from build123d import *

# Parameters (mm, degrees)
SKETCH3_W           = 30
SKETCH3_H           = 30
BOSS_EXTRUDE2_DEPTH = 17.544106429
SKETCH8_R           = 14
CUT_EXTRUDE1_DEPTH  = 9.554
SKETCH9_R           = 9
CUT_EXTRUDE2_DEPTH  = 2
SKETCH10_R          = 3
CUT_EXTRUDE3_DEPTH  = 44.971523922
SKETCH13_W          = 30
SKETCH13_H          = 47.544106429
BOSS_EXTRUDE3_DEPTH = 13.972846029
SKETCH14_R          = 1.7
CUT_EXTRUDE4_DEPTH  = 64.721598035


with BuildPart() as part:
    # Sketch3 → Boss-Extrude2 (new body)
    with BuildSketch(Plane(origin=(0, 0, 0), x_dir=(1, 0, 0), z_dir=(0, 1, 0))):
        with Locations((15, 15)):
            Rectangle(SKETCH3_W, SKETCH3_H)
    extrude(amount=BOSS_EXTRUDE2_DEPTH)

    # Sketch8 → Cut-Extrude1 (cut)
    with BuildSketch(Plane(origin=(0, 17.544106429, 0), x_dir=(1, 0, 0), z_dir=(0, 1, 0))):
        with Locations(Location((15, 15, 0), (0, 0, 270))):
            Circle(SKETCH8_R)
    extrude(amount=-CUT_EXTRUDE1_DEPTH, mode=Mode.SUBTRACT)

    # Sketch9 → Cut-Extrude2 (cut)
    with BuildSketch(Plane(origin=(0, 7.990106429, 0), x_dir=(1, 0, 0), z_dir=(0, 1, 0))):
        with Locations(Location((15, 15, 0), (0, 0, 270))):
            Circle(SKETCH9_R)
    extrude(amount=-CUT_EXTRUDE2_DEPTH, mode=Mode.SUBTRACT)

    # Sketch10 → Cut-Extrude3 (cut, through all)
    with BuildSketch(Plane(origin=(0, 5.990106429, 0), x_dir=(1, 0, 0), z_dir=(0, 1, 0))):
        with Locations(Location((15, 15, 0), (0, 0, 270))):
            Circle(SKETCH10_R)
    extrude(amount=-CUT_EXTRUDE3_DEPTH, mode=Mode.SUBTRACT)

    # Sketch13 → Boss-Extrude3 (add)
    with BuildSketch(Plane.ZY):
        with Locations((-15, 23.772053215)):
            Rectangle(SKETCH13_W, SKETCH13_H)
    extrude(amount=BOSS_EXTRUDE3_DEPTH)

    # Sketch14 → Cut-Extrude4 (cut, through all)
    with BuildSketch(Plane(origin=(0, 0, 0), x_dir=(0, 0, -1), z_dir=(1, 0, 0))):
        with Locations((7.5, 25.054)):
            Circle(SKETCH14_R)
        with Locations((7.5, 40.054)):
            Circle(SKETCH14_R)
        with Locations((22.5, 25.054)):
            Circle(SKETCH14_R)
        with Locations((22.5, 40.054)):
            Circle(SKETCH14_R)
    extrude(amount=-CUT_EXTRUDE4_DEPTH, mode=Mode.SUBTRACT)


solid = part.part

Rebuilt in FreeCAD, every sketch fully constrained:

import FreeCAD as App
import Part
import Sketcher
from FreeCAD import Vector
Q = App.Units.Quantity

doc = App.newDocument("Part")
body = doc.addObject("PartDesign::Body", "Body")

sketch1 = body.newObject("Sketcher::SketchObject", "Sketch")
sketch1.AttachmentSupport = (doc.getObject("XZ_Plane"), [""])
sketch1.MapMode = "FlatFace"
sketch1.addGeometry(Part.LineSegment(Vector(0, -30, 0), Vector(0, 0, 0)), False)
sketch1.addGeometry(Part.LineSegment(Vector(0, 0, 0), Vector(30, 0, 0)), False)
sketch1.addGeometry(Part.LineSegment(Vector(30, 0, 0), Vector(30, -30, 0)), False)
sketch1.addGeometry(Part.LineSegment(Vector(30, -30, 0), Vector(0, -30, 0)), False)
sketch1.addConstraint(Sketcher.Constraint("Coincident", 0, 2, 1, 1))
sketch1.addConstraint(Sketcher.Constraint("Coincident", 1, 2, 2, 1))
sketch1.addConstraint(Sketcher.Constraint("Coincident", 2, 2, 3, 1))
sketch1.addConstraint(Sketcher.Constraint("Coincident", 3, 2, 0, 1))
sketch1.addConstraint(Sketcher.Constraint("Vertical", 0))
sketch1.addConstraint(Sketcher.Constraint("Horizontal", 1))
sketch1.addConstraint(Sketcher.Constraint("Vertical", 2))
sketch1.addConstraint(Sketcher.Constraint("Horizontal", 3))
sketch1.addConstraint(Sketcher.Constraint("Coincident", 0, 2, -1, 1))
sketch1.addConstraint(Sketcher.Constraint("Equal", 3, 0))
sketch1.addConstraint(Sketcher.Constraint("DistanceX", 1, 1, 1, 2, Q("30 mm")))
pad1 = body.newObject("PartDesign::Pad", "Pad")
pad1.Profile = sketch1
pad1.Length = 17.544106
pad1.Reversed = True

sketch2 = body.newObject("Sketcher::SketchObject", "Sketch001")
sketch2.AttachmentSupport = (doc.getObject("XZ_Plane"), [""])
sketch2.MapMode = "FlatFace"
sketch2.AttachmentOffset = App.Placement(Vector(0, 0, -17.544106), App.Rotation())
sketch2.addGeometry(Part.Circle(Vector(15, -15, 0), Vector(0, 0, 1), 14), False)
sketch2.addConstraint(Sketcher.Constraint("Diameter", 0, Q("28 mm")))
sketch2.addConstraint(Sketcher.Constraint("DistanceX", -1, 1, 0, 3, Q("15 mm")))
sketch2.addConstraint(Sketcher.Constraint("DistanceY", 0, 3, -1, 1, Q("15 mm")))
pocket1 = body.newObject("PartDesign::Pocket", "Pocket")
pocket1.Profile = sketch2
pocket1.Length = 9.554
pocket1.Reversed = True

sketch3 = body.newObject("Sketcher::SketchObject", "Sketch002")
sketch3.AttachmentSupport = (doc.getObject("XZ_Plane"), [""])
sketch3.MapMode = "FlatFace"
sketch3.AttachmentOffset = App.Placement(Vector(0, 0, -7.990106), App.Rotation())
sketch3.addGeometry(Part.Circle(Vector(15, -15, 0), Vector(0, 0, 1), 9), False)
sketch3.addConstraint(Sketcher.Constraint("Diameter", 0, Q("18 mm")))
sketch3.addConstraint(Sketcher.Constraint("DistanceX", -1, 1, 0, 3, Q("15 mm")))
sketch3.addConstraint(Sketcher.Constraint("DistanceY", 0, 3, -1, 1, Q("15 mm")))
pocket2 = body.newObject("PartDesign::Pocket", "Pocket001")
pocket2.Profile = sketch3
pocket2.Length = 2
pocket2.Reversed = True

sketch4 = body.newObject("Sketcher::SketchObject", "Sketch003")
sketch4.AttachmentSupport = (doc.getObject("XZ_Plane"), [""])
sketch4.MapMode = "FlatFace"
sketch4.AttachmentOffset = App.Placement(Vector(0, 0, -5.990106), App.Rotation())
sketch4.addGeometry(Part.Circle(Vector(15, -15, 0), Vector(0, 0, 1), 3), False)
sketch4.addConstraint(Sketcher.Constraint("Diameter", 0, Q("6 mm")))
sketch4.addConstraint(Sketcher.Constraint("DistanceX", -1, 1, 0, 3, Q("15 mm")))
sketch4.addConstraint(Sketcher.Constraint("DistanceY", 0, 3, -1, 1, Q("15 mm")))
pocket3 = body.newObject("PartDesign::Pocket", "Pocket002")
pocket3.Profile = sketch4
pocket3.Type = "ThroughAll"
pocket3.Reversed = True

sketch5 = body.newObject("Sketcher::SketchObject", "Sketch004")
sketch5.AttachmentSupport = (doc.getObject("YZ_Plane"), [""])
sketch5.MapMode = "FlatFace"
sketch5.addGeometry(Part.LineSegment(Vector(47.544106, -30, 0), Vector(0, -30, 0)), False)
sketch5.addGeometry(Part.LineSegment(Vector(0, -30, 0), Vector(0, 0, 0)), False)
sketch5.addGeometry(Part.LineSegment(Vector(0, 0, 0), Vector(47.544106, 0, 0)), False)
sketch5.addGeometry(Part.LineSegment(Vector(47.544106, 0, 0), Vector(47.544106, -30, 0)), False)
sketch5.addConstraint(Sketcher.Constraint("Coincident", 0, 2, 1, 1))
sketch5.addConstraint(Sketcher.Constraint("Coincident", 1, 2, 2, 1))
sketch5.addConstraint(Sketcher.Constraint("Coincident", 2, 2, 3, 1))
sketch5.addConstraint(Sketcher.Constraint("Coincident", 3, 2, 0, 1))
sketch5.addConstraint(Sketcher.Constraint("Horizontal", 0))
sketch5.addConstraint(Sketcher.Constraint("Vertical", 1))
sketch5.addConstraint(Sketcher.Constraint("Horizontal", 2))
sketch5.addConstraint(Sketcher.Constraint("Vertical", 3))
sketch5.addConstraint(Sketcher.Constraint("Coincident", 1, 2, -1, 1))
sketch5.addConstraint(Sketcher.Constraint("DistanceY", 1, 1, 1, 2, Q("30 mm")))
sketch5.addConstraint(Sketcher.Constraint("DistanceX", 0, 2, 0, 1, Q("47.544106 mm")))
pad2 = body.newObject("PartDesign::Pad", "Pad001")
pad2.Profile = sketch5
pad2.Length = 13.972846
pad2.Reversed = True

sketch6 = body.newObject("Sketcher::SketchObject", "Sketch005")
sketch6.AttachmentSupport = (doc.getObject("YZ_Plane"), [""])
sketch6.MapMode = "FlatFace"
sketch6.addGeometry(Part.Circle(Vector(25.054, -7.5, 0), Vector(0, 0, 1), 1.7), False)
sketch6.addGeometry(Part.Circle(Vector(40.054, -7.5, 0), Vector(0, 0, 1), 1.7), False)
sketch6.addGeometry(Part.Circle(Vector(25.054, -22.5, 0), Vector(0, 0, 1), 1.7), False)
sketch6.addGeometry(Part.Circle(Vector(40.054, -22.5, 0), Vector(0, 0, 1), 1.7), False)
sketch6.addConstraint(Sketcher.Constraint("Equal", 0, 1))
sketch6.addConstraint(Sketcher.Constraint("Equal", 1, 2))
sketch6.addConstraint(Sketcher.Constraint("Equal", 2, 3))
sketch6.addConstraint(Sketcher.Constraint("Horizontal", 0, 3, 1, 3))
sketch6.addConstraint(Sketcher.Constraint("Horizontal", 2, 3, 3, 3))
sketch6.addConstraint(Sketcher.Constraint("Vertical", 0, 3, 2, 3))
sketch6.addConstraint(Sketcher.Constraint("Vertical", 1, 3, 3, 3))
sketch6.addConstraint(Sketcher.Constraint("Diameter", 0, Q("3.4 mm")))
sketch6.addConstraint(Sketcher.Constraint("DistanceX", 0, 3, 1, 3, Q("15 mm")))
sketch6.addConstraint(Sketcher.Constraint("DistanceY", 2, 3, 0, 3, Q("15 mm")))
sketch6.addConstraint(Sketcher.Constraint("DistanceY", 0, 3, -1, 1, Q("7.5 mm")))
sketch6.addConstraint(Sketcher.Constraint("DistanceX", -1, 1, 0, 3, Q("25.054 mm")))
pocket4 = body.newObject("PartDesign::Pocket", "Pocket003")
pocket4.Profile = sketch6
pocket4.Type = "ThroughAll"

doc.recompute()
